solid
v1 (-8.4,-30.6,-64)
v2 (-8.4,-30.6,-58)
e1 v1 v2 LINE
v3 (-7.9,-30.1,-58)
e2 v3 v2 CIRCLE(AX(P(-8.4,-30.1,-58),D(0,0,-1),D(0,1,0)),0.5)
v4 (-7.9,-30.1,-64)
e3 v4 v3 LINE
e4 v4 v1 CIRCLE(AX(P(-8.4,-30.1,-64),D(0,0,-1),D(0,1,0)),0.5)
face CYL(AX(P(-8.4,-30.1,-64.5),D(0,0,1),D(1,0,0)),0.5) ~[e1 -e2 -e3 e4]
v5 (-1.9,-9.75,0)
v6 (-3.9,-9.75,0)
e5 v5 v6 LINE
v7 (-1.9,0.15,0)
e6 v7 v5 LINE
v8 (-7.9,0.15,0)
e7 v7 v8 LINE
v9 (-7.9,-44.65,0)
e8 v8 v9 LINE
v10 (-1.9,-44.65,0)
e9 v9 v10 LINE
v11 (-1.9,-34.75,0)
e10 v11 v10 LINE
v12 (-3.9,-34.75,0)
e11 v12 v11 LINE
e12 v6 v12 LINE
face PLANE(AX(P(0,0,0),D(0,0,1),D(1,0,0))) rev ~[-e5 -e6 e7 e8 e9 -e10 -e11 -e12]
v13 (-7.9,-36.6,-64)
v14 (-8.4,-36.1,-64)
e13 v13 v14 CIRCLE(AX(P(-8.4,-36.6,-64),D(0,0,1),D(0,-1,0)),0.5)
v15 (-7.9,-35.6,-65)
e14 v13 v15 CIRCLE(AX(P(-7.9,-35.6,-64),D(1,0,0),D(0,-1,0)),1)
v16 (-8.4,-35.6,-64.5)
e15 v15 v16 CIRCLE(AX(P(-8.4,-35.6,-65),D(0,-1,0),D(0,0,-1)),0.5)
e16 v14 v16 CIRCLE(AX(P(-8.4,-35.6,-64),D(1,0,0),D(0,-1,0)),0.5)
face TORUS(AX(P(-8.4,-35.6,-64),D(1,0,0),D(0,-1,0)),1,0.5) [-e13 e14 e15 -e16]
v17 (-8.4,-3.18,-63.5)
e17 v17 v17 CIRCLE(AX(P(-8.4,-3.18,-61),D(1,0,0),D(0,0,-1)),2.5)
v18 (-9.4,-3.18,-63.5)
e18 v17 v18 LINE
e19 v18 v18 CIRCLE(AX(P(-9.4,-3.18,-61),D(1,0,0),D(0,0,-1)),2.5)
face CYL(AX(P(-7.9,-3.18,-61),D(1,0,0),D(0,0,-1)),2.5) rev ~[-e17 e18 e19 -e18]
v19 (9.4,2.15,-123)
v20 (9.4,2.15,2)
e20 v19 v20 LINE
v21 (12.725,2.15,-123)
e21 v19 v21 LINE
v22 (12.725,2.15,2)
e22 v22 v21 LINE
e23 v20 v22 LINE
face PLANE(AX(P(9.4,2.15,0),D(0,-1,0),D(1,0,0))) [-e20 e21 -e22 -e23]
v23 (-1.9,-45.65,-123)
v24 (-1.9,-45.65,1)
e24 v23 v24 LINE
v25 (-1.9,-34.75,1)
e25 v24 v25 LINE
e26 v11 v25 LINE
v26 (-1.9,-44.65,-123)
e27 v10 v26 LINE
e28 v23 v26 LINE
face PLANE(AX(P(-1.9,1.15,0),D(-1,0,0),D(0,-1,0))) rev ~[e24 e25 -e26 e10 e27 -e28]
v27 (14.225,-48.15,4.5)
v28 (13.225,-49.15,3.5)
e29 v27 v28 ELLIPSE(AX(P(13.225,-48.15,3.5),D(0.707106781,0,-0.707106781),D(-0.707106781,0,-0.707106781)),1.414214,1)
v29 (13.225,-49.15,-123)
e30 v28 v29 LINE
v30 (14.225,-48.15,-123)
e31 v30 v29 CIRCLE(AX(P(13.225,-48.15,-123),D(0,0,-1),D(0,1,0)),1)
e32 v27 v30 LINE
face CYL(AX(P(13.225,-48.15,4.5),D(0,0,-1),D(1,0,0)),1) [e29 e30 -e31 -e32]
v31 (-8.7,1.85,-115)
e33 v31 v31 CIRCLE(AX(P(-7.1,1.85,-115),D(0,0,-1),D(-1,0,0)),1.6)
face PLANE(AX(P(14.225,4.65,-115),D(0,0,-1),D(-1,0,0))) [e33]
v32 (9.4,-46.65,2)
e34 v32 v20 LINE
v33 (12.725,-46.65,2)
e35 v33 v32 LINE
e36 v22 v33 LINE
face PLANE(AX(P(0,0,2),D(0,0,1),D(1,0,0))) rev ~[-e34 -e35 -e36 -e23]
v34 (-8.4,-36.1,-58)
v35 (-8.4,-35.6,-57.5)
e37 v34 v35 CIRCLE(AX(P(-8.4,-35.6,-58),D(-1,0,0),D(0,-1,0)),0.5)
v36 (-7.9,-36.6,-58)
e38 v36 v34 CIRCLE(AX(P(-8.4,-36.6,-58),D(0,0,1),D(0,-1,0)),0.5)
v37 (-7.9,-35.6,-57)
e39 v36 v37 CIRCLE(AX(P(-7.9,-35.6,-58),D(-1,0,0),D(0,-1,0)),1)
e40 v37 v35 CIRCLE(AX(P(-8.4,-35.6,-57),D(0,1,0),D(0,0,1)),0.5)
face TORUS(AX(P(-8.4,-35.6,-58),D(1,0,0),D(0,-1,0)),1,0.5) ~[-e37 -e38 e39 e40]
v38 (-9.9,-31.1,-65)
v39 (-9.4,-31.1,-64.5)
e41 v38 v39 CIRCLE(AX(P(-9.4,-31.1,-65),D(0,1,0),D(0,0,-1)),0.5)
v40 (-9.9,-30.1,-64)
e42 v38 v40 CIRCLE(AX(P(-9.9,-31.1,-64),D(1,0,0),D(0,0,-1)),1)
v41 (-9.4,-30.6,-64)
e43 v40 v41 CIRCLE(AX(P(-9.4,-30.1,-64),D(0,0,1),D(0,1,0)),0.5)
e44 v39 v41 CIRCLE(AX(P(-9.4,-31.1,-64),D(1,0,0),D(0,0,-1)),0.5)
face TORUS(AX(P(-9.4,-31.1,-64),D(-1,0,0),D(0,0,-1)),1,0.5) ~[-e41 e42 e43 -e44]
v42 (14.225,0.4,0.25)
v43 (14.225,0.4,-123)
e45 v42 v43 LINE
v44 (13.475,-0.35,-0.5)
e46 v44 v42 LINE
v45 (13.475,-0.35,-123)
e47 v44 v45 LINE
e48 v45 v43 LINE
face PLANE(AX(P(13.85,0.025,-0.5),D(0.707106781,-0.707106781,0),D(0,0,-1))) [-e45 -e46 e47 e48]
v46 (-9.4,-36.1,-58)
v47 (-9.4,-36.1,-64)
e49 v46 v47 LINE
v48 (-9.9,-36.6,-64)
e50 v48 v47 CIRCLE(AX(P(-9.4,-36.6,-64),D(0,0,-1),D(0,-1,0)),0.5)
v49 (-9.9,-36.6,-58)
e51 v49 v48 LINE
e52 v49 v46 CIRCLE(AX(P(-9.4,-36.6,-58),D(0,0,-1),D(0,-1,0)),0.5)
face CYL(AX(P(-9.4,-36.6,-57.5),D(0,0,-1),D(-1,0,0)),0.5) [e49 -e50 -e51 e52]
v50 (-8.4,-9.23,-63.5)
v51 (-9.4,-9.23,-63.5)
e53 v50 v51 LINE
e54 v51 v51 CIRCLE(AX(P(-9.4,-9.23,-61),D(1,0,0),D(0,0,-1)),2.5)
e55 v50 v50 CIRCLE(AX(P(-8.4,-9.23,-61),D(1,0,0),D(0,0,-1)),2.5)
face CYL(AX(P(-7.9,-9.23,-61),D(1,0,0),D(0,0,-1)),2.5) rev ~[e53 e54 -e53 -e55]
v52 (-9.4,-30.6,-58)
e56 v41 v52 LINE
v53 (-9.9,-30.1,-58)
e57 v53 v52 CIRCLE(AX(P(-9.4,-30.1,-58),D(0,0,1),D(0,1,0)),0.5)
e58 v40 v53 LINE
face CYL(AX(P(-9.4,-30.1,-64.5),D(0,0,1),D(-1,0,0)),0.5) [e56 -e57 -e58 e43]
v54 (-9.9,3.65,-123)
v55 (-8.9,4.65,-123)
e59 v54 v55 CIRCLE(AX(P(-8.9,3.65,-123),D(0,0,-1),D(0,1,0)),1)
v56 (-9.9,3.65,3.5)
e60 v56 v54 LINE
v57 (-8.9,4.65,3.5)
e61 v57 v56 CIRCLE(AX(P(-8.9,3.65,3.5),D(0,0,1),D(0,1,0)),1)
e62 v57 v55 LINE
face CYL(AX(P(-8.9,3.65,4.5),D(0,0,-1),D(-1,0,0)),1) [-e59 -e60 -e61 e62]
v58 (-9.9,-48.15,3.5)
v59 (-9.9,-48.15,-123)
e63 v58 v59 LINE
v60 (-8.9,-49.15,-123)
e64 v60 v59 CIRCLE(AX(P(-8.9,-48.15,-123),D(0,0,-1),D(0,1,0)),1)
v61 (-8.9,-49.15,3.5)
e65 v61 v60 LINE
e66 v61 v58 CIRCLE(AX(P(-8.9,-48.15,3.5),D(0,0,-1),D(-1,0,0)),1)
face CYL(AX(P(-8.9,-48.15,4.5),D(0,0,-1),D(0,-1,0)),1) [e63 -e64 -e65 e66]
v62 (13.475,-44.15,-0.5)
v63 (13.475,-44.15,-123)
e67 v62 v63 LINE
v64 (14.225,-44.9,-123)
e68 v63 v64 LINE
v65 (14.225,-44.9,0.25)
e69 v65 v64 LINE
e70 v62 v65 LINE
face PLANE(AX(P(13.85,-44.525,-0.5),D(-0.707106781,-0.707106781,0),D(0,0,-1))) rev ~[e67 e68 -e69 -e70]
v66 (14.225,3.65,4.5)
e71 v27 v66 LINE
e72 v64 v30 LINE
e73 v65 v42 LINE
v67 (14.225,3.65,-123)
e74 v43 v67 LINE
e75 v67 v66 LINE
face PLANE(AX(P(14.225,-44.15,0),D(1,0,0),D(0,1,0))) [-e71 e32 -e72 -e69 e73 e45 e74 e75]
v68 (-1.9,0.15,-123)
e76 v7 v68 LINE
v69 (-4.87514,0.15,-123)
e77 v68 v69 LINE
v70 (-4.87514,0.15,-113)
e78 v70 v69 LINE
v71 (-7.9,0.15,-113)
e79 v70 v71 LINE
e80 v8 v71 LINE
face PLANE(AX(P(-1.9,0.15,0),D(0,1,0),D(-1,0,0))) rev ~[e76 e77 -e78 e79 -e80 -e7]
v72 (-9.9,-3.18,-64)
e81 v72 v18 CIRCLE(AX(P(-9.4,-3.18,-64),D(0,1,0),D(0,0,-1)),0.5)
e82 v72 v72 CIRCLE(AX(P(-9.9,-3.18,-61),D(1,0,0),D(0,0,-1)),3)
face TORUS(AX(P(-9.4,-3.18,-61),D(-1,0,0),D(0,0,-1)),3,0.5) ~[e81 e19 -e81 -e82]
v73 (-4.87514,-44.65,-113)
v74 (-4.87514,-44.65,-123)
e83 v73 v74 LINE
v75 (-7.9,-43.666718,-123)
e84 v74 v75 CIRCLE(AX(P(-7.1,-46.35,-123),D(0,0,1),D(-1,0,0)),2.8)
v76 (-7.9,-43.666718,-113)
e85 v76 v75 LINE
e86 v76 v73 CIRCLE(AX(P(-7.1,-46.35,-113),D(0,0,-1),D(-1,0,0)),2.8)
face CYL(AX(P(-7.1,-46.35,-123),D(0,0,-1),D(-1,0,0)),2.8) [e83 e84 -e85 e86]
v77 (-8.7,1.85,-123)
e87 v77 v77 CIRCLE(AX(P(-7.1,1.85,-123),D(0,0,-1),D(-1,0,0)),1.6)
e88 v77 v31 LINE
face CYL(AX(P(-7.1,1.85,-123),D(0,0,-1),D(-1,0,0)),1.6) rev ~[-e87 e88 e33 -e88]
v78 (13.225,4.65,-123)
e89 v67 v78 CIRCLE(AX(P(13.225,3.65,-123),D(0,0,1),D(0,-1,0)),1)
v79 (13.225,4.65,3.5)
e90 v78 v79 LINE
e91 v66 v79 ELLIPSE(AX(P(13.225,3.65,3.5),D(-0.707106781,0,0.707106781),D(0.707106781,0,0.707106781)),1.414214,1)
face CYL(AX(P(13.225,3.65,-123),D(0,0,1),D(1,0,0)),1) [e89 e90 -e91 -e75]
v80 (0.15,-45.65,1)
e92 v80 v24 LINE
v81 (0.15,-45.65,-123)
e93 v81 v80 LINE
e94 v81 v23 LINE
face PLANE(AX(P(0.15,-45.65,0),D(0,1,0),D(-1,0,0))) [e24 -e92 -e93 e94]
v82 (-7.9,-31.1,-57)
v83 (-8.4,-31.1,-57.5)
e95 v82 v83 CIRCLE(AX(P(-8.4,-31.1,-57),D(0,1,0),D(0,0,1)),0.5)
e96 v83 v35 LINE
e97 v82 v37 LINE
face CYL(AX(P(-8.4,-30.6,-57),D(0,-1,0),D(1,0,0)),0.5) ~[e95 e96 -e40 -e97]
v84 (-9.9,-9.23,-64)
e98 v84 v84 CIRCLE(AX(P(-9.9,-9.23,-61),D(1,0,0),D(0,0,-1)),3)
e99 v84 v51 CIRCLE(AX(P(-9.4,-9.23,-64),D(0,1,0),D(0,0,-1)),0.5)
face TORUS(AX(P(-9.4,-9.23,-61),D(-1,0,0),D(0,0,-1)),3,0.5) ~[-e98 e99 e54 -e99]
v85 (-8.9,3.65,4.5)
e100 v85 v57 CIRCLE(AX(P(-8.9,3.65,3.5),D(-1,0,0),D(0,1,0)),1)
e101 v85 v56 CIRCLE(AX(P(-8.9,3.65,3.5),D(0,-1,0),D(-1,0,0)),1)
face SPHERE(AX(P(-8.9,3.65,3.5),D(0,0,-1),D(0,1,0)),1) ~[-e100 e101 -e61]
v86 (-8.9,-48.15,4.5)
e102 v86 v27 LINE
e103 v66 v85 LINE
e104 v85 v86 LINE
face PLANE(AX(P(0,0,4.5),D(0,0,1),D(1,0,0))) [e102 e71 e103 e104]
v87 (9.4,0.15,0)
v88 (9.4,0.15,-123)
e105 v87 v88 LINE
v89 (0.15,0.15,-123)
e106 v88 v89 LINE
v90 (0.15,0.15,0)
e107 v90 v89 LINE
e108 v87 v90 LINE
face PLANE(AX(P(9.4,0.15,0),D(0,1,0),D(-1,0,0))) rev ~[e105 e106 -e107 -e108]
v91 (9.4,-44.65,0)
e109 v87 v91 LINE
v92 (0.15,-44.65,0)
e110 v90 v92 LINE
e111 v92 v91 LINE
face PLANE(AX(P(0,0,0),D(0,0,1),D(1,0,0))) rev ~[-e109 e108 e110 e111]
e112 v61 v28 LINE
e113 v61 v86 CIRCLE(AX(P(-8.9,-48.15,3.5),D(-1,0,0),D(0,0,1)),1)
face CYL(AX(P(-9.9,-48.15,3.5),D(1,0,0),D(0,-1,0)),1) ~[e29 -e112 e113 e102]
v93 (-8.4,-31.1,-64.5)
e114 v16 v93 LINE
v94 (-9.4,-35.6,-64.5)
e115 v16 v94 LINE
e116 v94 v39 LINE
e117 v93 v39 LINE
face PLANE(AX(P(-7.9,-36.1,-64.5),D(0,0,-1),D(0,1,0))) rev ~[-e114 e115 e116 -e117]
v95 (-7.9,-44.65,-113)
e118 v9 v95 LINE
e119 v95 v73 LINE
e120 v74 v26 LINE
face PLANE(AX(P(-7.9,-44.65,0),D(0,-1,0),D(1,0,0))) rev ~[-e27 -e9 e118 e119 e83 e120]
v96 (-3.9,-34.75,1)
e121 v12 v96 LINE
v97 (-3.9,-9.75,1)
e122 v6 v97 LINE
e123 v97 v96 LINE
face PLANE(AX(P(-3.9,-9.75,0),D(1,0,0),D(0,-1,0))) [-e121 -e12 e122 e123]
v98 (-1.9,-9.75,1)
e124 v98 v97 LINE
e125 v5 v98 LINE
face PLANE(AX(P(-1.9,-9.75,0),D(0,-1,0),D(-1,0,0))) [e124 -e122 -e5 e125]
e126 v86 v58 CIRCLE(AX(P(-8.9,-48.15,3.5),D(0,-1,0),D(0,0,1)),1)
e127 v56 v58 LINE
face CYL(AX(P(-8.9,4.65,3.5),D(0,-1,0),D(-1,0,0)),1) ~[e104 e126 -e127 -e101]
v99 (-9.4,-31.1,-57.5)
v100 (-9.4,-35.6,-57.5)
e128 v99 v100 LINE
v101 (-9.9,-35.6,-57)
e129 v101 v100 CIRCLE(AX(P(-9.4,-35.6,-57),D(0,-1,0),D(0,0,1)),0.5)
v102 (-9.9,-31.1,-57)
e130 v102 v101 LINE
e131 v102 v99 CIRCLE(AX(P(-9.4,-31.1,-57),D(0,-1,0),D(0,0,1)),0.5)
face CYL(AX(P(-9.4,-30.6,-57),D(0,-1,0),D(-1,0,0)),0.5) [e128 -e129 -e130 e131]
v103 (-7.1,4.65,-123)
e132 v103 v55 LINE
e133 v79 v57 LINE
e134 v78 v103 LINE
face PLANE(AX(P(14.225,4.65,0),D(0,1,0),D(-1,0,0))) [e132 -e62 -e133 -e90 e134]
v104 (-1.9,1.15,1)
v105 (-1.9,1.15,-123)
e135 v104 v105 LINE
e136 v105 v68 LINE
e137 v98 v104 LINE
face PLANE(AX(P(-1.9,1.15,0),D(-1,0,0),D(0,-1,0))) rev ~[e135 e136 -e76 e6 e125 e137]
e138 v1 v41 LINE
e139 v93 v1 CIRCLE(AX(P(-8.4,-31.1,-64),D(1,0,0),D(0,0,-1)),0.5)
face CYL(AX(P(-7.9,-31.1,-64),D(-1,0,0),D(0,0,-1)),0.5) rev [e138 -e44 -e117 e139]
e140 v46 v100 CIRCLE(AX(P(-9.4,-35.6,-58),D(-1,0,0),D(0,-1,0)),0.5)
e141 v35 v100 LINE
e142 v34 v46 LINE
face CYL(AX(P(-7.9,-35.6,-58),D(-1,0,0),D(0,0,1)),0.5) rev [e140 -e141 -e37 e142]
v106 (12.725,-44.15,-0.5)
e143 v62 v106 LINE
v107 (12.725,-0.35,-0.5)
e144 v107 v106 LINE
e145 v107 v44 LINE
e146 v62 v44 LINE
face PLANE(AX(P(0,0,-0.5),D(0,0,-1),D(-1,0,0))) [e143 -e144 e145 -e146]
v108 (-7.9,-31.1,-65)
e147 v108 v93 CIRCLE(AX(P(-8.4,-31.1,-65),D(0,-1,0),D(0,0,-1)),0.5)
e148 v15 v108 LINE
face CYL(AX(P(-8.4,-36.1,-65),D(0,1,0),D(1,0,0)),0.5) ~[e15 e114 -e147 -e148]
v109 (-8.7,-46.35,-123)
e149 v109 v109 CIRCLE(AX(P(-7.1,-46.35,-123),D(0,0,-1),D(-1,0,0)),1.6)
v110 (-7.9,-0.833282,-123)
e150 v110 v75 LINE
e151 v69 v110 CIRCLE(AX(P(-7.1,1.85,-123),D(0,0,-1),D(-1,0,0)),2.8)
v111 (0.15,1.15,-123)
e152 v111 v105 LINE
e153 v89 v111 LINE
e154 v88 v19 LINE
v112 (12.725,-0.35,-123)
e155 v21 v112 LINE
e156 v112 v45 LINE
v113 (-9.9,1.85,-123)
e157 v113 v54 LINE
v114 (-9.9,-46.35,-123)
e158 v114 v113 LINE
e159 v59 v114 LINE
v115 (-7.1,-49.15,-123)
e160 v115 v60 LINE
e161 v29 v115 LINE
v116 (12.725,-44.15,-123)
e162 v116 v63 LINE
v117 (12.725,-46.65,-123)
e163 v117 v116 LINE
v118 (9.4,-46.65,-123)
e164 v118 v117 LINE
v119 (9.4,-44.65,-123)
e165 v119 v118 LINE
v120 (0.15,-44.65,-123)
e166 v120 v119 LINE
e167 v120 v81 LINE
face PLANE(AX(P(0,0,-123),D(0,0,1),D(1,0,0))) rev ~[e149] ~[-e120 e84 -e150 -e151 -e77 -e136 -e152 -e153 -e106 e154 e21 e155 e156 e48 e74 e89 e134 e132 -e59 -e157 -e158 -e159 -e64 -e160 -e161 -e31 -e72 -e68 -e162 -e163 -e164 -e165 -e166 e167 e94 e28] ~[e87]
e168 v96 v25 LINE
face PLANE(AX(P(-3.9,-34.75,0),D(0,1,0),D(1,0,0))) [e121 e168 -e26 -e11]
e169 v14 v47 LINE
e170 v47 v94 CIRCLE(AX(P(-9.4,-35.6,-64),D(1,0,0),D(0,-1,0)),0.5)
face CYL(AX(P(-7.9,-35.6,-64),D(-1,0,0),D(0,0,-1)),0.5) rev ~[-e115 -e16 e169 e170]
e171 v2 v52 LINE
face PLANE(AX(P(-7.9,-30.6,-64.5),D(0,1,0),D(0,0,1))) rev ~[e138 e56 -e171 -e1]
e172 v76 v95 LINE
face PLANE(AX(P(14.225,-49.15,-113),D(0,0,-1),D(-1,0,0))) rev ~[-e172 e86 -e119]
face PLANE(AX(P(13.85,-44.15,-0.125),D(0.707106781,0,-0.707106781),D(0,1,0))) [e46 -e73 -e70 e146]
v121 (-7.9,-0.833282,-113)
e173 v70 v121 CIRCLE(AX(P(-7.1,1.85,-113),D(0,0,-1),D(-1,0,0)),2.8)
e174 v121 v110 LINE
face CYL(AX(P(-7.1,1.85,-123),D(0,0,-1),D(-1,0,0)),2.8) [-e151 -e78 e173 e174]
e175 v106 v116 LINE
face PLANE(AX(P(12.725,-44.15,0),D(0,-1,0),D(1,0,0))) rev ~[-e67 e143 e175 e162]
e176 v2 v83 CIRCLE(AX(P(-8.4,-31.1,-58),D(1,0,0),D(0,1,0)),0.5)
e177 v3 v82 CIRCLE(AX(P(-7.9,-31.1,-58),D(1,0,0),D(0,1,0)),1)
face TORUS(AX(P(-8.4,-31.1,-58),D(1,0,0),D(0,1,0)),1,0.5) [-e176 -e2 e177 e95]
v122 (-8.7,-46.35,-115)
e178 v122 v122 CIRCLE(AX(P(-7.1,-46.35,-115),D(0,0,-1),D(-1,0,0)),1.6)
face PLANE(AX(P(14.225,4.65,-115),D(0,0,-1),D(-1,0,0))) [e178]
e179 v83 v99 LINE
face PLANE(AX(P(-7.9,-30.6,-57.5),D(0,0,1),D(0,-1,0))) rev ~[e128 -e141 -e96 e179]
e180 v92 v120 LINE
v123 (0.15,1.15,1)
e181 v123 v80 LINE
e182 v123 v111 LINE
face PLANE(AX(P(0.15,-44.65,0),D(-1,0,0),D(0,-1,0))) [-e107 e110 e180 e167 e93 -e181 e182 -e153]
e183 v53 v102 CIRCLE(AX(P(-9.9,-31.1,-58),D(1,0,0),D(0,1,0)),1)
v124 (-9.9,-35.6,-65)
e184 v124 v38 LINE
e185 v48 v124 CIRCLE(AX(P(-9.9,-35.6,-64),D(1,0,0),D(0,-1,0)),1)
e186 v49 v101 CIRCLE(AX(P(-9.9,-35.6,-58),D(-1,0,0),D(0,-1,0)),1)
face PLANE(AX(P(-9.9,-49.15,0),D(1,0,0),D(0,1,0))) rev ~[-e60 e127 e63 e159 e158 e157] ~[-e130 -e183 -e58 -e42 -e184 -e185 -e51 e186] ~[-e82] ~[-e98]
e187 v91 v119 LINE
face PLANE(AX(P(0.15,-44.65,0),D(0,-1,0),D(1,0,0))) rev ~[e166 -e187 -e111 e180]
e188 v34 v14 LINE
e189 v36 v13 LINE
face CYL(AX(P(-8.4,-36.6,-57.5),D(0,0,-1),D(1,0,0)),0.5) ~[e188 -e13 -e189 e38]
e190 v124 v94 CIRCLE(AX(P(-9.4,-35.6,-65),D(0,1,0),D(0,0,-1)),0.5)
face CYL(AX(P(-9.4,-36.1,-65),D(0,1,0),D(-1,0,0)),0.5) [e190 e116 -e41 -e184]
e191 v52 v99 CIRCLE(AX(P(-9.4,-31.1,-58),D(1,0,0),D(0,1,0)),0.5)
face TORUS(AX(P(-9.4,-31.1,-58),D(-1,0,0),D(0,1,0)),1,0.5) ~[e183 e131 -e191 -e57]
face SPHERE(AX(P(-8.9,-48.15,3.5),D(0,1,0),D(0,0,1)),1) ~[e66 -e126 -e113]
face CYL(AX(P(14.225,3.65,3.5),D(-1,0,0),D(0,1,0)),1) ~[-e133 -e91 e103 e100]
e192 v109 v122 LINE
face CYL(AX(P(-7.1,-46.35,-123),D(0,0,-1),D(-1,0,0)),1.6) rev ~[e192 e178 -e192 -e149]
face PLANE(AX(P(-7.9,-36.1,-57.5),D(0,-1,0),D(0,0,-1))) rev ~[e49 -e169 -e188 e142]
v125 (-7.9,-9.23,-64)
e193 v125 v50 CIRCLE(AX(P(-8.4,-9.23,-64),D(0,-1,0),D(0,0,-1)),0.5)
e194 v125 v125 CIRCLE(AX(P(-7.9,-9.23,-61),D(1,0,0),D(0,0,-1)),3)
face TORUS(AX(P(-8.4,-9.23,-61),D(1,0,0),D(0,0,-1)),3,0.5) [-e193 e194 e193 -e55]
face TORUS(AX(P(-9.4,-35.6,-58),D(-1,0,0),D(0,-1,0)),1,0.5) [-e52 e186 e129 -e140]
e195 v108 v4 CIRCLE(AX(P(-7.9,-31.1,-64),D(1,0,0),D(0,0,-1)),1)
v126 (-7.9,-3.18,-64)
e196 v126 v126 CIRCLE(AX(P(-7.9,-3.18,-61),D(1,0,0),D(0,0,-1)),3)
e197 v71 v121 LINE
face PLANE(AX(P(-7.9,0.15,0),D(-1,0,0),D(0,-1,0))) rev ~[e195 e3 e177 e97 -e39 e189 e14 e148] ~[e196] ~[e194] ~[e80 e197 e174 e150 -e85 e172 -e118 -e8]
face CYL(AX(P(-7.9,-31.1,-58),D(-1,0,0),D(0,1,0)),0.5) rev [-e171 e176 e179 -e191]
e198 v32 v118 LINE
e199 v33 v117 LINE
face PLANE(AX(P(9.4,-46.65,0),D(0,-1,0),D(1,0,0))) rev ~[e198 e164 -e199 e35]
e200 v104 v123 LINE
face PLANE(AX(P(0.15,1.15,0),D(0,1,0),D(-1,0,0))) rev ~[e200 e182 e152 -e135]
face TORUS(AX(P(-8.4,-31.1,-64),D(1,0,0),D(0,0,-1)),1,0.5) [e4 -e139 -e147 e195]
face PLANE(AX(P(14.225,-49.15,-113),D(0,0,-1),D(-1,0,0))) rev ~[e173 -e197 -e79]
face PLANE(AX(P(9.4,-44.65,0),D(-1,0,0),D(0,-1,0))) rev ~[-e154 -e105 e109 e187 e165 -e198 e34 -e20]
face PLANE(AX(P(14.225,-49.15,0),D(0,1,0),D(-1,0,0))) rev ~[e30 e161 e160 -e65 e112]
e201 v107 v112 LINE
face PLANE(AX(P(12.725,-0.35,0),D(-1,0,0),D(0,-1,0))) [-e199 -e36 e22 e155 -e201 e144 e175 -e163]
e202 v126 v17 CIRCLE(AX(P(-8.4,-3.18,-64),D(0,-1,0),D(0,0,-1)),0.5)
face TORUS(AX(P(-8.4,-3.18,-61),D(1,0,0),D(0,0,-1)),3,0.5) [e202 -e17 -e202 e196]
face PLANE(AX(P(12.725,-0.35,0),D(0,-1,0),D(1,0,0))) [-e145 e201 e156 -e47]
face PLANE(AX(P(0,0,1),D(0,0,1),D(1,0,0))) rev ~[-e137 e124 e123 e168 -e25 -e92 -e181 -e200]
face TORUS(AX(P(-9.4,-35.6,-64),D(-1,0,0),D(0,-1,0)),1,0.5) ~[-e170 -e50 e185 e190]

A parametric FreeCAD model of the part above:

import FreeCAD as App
import Part
import Sketcher
Q = App.Units.Quantity


def edges_at(feature, points):
    """Names of the edges that pass closest to the given points."""
    edges = feature.Shape.Edges
    near = lambda p: min(range(len(edges)), key=lambda i: edges[i].distToShape(Part.Vertex(*p))[0])
    return sorted({f"Edge{near(p) + 1}" for p in points})


def add_polygon(sketch, points):
    """Adds a closed chain of lines whose ends are joined by coincident constraints."""
    first, n = sketch.GeometryCount, len(points)
    for a, b in zip(points, points[1:] + points[:1]):
        sketch.addGeometry(Part.LineSegment(App.Vector(*a, 0), App.Vector(*b, 0)), False)
    for i in range(n):
        sketch.addConstraint(Sketcher.Constraint("Coincident", first + i, 2, first + (i + 1) % n, 1))

doc = App.newDocument("Part")
params = doc.addObject("Spreadsheet::Sheet", "Params")
for row, (alias, value) in enumerate([
    ("sketch1_width", "6 mm"),
    ("sketch1_height", "2 mm"),
    ("sketch1_height2", "5 mm"),
    ("sketch1_width2", "1.5 mm"),
    ("sketch1_height3", "2.5 mm"),
    ("pad1_length", "123 mm"),
    ("sketch2_height", "53.8 mm"),
    ("sketch2_height2", "46.8 mm"),
    ("sketch2_height3", "48.8 mm"),
    ("sketch2_width", "2.05 mm"),
    ("pad2_length", "4.5 mm"),
    ("sketch3_height", "46.8 mm"),
    ("sketch3_width", "2.05 mm"),
    ("pad3_length", "3.5 mm"),
    ("sketch4_height", "48.8 mm"),
    ("pad4_length", "2.5 mm"),
    ("sketch5_width", "1.5 mm"),
    ("sketch5_height", "43.8 mm"),
    ("pad5_length", "0.5 mm"),
    ("sketch6_diameter", "5.6 mm"),
    ("pad6_length", "10 mm"),
    ("sketch7_diameter", "3.2 mm"),
    ("pocket1_length", "8 mm"),
    ("chamfer_size", "0.75 mm"),
    ("sketch8_diameter", "5 mm"),
    ("sketch8_height", "7 mm"),
    ("sketch8_width", "5.5 mm"),
    ("fillet_radius", "1 mm"),
    ("fillet2_radius", "0.5 mm"),
    ("sketch9_width", "2 mm"),
    ("sketch9_height", "25 mm"),
    ("pocket3_length", "1 mm"),
], start=1):
    params.set(f"A{row}", alias)
    params.set(f"B{row}", "=" + value)
    params.setAlias(f"B{row}", alias)

body = doc.addObject("PartDesign::Body", "Body")

sketch1 = body.newObject("Sketcher::SketchObject", "Sketch")
sketch1.AttachmentSupport = (doc.getObject("XY_Plane"), [""])
sketch1.MapMode = "FlatFace"
add_polygon(sketch1, [(9.4, -44.6), (0.1, -44.6), (0.1, -45.6), (-1.9, -45.6), (-1.9, -44.6), (-7.9, -44.6), (-7.9, 0.1), (-1.9, 0.1), (-1.9, 1.1), (0.1, 1.1), (0.1, 0.1), (9.4, 0.1), (9.4, 2.1), (12.7, 2.1), (12.7, -0.3), (14.2, -0.3), (14.2, 4.7), (-9.9, 4.7), (-9.9, -49.1), (14.2, -49.1), (14.2, -44.1), (12.7, -44.1), (12.7, -46.6), (9.4, -46.6)])
sketch1.addConstraint([
    Sketcher.Constraint("Horizontal", 0),
    Sketcher.Constraint("Vertical", 1),
    Sketcher.Constraint("Horizontal", 2),
    Sketcher.Constraint("Vertical", 3),
    Sketcher.Constraint("Horizontal", 4),
    Sketcher.Constraint("Vertical", 5),
    Sketcher.Constraint("Horizontal", 6),
    Sketcher.Constraint("Vertical", 7),
    Sketcher.Constraint("Horizontal", 8),
    Sketcher.Constraint("Vertical", 9),
    Sketcher.Constraint("Horizontal", 10),
    Sketcher.Constraint("Vertical", 11),
    Sketcher.Constraint("Horizontal", 12),
    Sketcher.Constraint("Vertical", 13),
    Sketcher.Constraint("Horizontal", 14),
    Sketcher.Constraint("Vertical", 15),
    Sketcher.Constraint("Horizontal", 16),
    Sketcher.Constraint("Vertical", 17),
    Sketcher.Constraint("Horizontal", 18),
    Sketcher.Constraint("Vertical", 19),
    Sketcher.Constraint("Horizontal", 20),
    Sketcher.Constraint("Vertical", 21),
    Sketcher.Constraint("Horizontal", 22),
    Sketcher.Constraint("Vertical", 23),
    Sketcher.Constraint("Horizontal", 0, 2, 3, 2),
    Sketcher.Constraint("Horizontal", 6, 2, 9, 2),
    Sketcher.Constraint("Vertical", 3, 2, 6, 2),
    Sketcher.Constraint("Vertical", 1, 2, 8, 2),
    Sketcher.Constraint("Vertical", 15, 2, 18, 2),
    Sketcher.Constraint("Vertical", 13, 2, 20, 2),
    Sketcher.Constraint("Vertical", 11, 2, 22, 2),
    Sketcher.Constraint("Equal", 3, 7),
    Sketcher.Constraint("Equal", 15, 19),
    Sketcher.Constraint("Equal", 13, 21),
    Sketcher.Constraint("Equal", 11, 23),
    Sketcher.Constraint("DistanceX", 4, 2, 4, 1, Q("6 mm")),
    Sketcher.Constraint("DistanceY", 11, 1, 11, 2, Q("2 mm")),
    Sketcher.Constraint("DistanceY", 15, 1, 15, 2, Q("5 mm")),
    Sketcher.Constraint("DistanceX", 14, 1, 14, 2, Q("1.5 mm")),
    Sketcher.Constraint("DistanceY", 13, 2, 13, 1, Q("2.5 mm")),
    Sketcher.Constraint("DistanceX", 16, 2, 5, 2, Q("2 mm")),
    Sketcher.Constraint("DistanceY", 13, 2, 8, 2, Q("1.5 mm")),
    Sketcher.Constraint("DistanceX", 12, 1, 12, 2, Q("3.325 mm")),
    Sketcher.Constraint("DistanceX", -1, 1, 0, 2, Q("0.15 mm")),
    Sketcher.Constraint("DistanceY", -1, 1, 5, 2, Q("0.15 mm")),
    Sketcher.Constraint("DistanceY", 5, 1, 5, 2, Q("44.8 mm")),
    Sketcher.Constraint("DistanceX", 0, 2, 0, 1, Q("9.25 mm")),
    Sketcher.Constraint("DistanceX", 2, 2, 2, 1, Q("2.05 mm")),
])
sketch1.setExpression("Constraints[59]", "Params.sketch1_width")
sketch1.setExpression("Constraints[60]", "Params.sketch1_height")
sketch1.setExpression("Constraints[61]", "Params.sketch1_height2")
sketch1.setExpression("Constraints[62]", "Params.sketch1_width2")
sketch1.setExpression("Constraints[63]", "Params.sketch1_height3")
pad1 = body.newObject("PartDesign::Pad", "Pad")
pad1.Profile = sketch1
pad1.setExpression("Length", "Params.pad1_length")
pad1.Reversed = True

sketch2 = body.newObject("Sketcher::SketchObject", "Sketch001")
sketch2.AttachmentSupport = (doc.getObject("XY_Plane"), [""])
sketch2.MapMode = "FlatFace"
add_polygon(sketch2, [(14.2, -49.1), (14.2, 4.7), (-9.9, 4.7), (-9.9, -49.1)])
add_polygon(sketch2, [(0.1, 1.1), (0.1, -45.6), (-1.9, -45.6), (-1.9, 1.1)])
add_polygon(sketch2, [(9.4, -46.6), (9.4, 2.1), (12.7, 2.1), (12.7, -46.6)])
sketch2.addConstraint([
    Sketcher.Constraint("Vertical", 0),
    Sketcher.Constraint("Horizontal", 1),
    Sketcher.Constraint("Vertical", 2),
    Sketcher.Constraint("Horizontal", 3),
    Sketcher.Constraint("Vertical", 4),
    Sketcher.Constraint("Horizontal", 5),
    Sketcher.Constraint("Vertical", 6),
    Sketcher.Constraint("Horizontal", 7),
    Sketcher.Constraint("Vertical", 8),
    Sketcher.Constraint("Horizontal", 9),
    Sketcher.Constraint("Vertical", 10),
    Sketcher.Constraint("Horizontal", 11),
    Sketcher.Constraint("DistanceY", 0, 1, 0, 2, Q("53.8 mm")),
    Sketcher.Constraint("DistanceY", 4, 2, 4, 1, Q("46.8 mm")),
    Sketcher.Constraint("DistanceY", 8, 1, 8, 2, Q("48.8 mm")),
    Sketcher.Constraint("DistanceX", 2, 2, 5, 2, Q("8 mm")),
    Sketcher.Constraint("DistanceY", 7, 2, 8, 2, Q("1 mm")),
    Sketcher.Constraint("DistanceX", 5, 2, 5, 1, Q("2.05 mm")),
    Sketcher.Constraint("DistanceX", 1, 2, -1, 1, Q("9.9 mm")),
    Sketcher.Constraint("DistanceX", -1, 1, 8, 2, Q("9.4 mm")),
    Sketcher.Constraint("DistanceY", 2, 2, 4, 2, Q("3.5 mm")),
    Sketcher.Constraint("DistanceX", 9, 2, 0, 2, Q("1.5 mm")),
    Sketcher.Constraint("DistanceX", 1, 2, 1, 1, Q("24.125 mm")),
    Sketcher.Constraint("DistanceY", -1, 1, 0, 2, Q("4.65 mm")),
])
sketch2.setExpression("Constraints[24]", "Params.sketch2_height")
sketch2.setExpression("Constraints[25]", "Params.sketch2_height2")
sketch2.setExpression("Constraints[26]", "Params.sketch2_height3")
sketch2.setExpression("Constraints[29]", "Params.sketch2_width")
pad2 = body.newObject("PartDesign::Pad", "Pad001")
pad2.Profile = sketch2
pad2.setExpression("Length", "Params.pad2_length")

sketch3 = body.newObject("Sketcher::SketchObject", "Sketch002")
sketch3.AttachmentSupport = (doc.getObject("XY_Plane"), [""])
sketch3.MapMode = "FlatFace"
sketch3.AttachmentOffset = App.Placement(App.Vector(0, 0, 4.5), App.Rotation())
add_polygon(sketch3, [(0.1, -45.6), (0.1, 1.1), (-1.9, 1.1), (-1.9, -45.6)])
sketch3.addConstraint([
    Sketcher.Constraint("Vertical", 0),
    Sketcher.Constraint("Horizontal", 1),
    Sketcher.Constraint("Vertical", 2),
    Sketcher.Constraint("Horizontal", 3),
    Sketcher.Constraint("DistanceY", 0, 1, 0, 2, Q("46.8 mm")),
    Sketcher.Constraint("DistanceX", 1, 2, 1, 1, Q("2.05 mm")),
    Sketcher.Constraint("DistanceX", 1, 2, -1, 1, Q("1.9 mm")),
    Sketcher.Constraint("DistanceY", -1, 1, 0, 2, Q("1.15 mm")),
])
sketch3.setExpression("Constraints[8]", "Params.sketch3_height")
sketch3.setExpression("Constraints[9]", "Params.sketch3_width")
pad3 = body.newObject("PartDesign::Pad", "Pad002")
pad3.Profile = sketch3
pad3.setExpression("Length", "Params.pad3_length")
pad3.Reversed = True

sketch4 = body.newObject("Sketcher::SketchObject", "Sketch003")
sketch4.AttachmentSupport = (doc.getObject("XY_Plane"), [""])
sketch4.MapMode = "FlatFace"
sketch4.AttachmentOffset = App.Placement(App.Vector(0, 0, 4.5), App.Rotation())
add_polygon(sketch4, [(12.7, -46.6), (12.7, 2.1), (9.4, 2.1), (9.4, -46.6)])
sketch4.addConstraint([
    Sketcher.Constraint("Vertical", 0),
    Sketcher.Constraint("Horizontal", 1),
    Sketcher.Constraint("Vertical", 2),
    Sketcher.Constraint("Horizontal", 3),
    Sketcher.Constraint("DistanceY", 0, 1, 0, 2, Q("48.8 mm")),
    Sketcher.Constraint("DistanceX", -1, 1, 1, 2, Q("9.4 mm")),
    Sketcher.Constraint("DistanceX", 1, 2, 1, 1, Q("3.325 mm")),
    Sketcher.Constraint("DistanceY", -1, 1, 0, 2, Q("2.15 mm")),
])
sketch4.setExpression("Constraints[8]", "Params.sketch4_height")
pad4 = body.newObject("PartDesign::Pad", "Pad003")
pad4.Profile = sketch4
pad4.setExpression("Length", "Params.pad4_length")
pad4.Reversed = True

sketch5 = body.newObject("Sketcher::SketchObject", "Sketch004")
sketch5.AttachmentSupport = (doc.getObject("XY_Plane"), [""])
sketch5.MapMode = "FlatFace"
add_polygon(sketch5, [(12.7, -44.1), (12.7, -0.3), (14.2, -0.3), (14.2, -44.1)])
sketch5.addConstraint([
    Sketcher.Constraint("Vertical", 0),
    Sketcher.Constraint("Horizontal", 1),
    Sketcher.Constraint("Vertical", 2),
    Sketcher.Constraint("Horizontal", 3),
    Sketcher.Constraint("DistanceX", 1, 1, 1, 2, Q("1.5 mm")),
    Sketcher.Constraint("DistanceY", 0, 1, 0, 2, Q("43.8 mm")),
    Sketcher.Constraint("DistanceY", 0, 2, -1, 1, Q("0.35 mm")),
    Sketcher.Constraint("DistanceX", -1, 1, 0, 2, Q("12.725 mm")),
])
sketch5.setExpression("Constraints[8]", "Params.sketch5_width")
sketch5.setExpression("Constraints[9]", "Params.sketch5_height")
pad5 = body.newObject("PartDesign::Pad", "Pad004")
pad5.Profile = sketch5
pad5.setExpression("Length", "Params.pad5_length")
pad5.Reversed = True

sketch6 = body.newObject("Sketcher::SketchObject", "Sketch005")
sketch6.AttachmentSupport = (doc.getObject("XY_Plane"), [""])
sketch6.MapMode = "FlatFace"
sketch6.AttachmentOffset = App.Placement(App.Vector(0, 0, -123), App.Rotation())
sketch6.addGeometry([
    Part.Circle(App.Vector(-7.1, 1.9, 0), App.Vector(0, 0, 1), 2.8),
    Part.Circle(App.Vector(-7.1, -46.4, 0), App.Vector(0, 0, 1), 2.8),
], False)
sketch6.addConstraint([
    Sketcher.Constraint("Equal", 0, 1),
    Sketcher.Constraint("Vertical", 0, 3, 1, 3),
    Sketcher.Constraint("Diameter", 0, Q("5.6 mm")),
    Sketcher.Constraint("DistanceX", 0, 3, -1, 1, Q("7.1 mm")),
    Sketcher.Constraint("DistanceY", 1, 3, 0, 3, Q("48.2 mm")),
    Sketcher.Constraint("DistanceY", -1, 1, 0, 3, Q("1.85 mm")),
])
sketch6.setExpression("Constraints[2]", "Params.sketch6_diameter")
pad6 = body.newObject("PartDesign::Pad", "Pad005")
pad6.Profile = sketch6
pad6.setExpression("Length", "Params.pad6_length")

sketch7 = body.newObject("Sketcher::SketchObject", "Sketch006")
sketch7.AttachmentSupport = (doc.getObject("XY_Plane"), [""])
sketch7.MapMode = "FlatFace"
sketch7.AttachmentOffset = App.Placement(App.Vector(0, 0, -123), App.Rotation())
sketch7.addGeometry([
    Part.Circle(App.Vector(-7.1, 1.9, 0), App.Vector(0, 0, 1), 1.6),
    Part.Circle(App.Vector(-7.1, -46.4, 0), App.Vector(0, 0, 1), 1.6),
], False)
sketch7.addConstraint([
    Sketcher.Constraint("Equal", 0, 1),
    Sketcher.Constraint("Vertical", 0, 3, 1, 3),
    Sketcher.Constraint("Diameter", 0, Q("3.2 mm")),
    Sketcher.Constraint("DistanceX", 0, 3, -1, 1, Q("7.1 mm")),
    Sketcher.Constraint("DistanceY", 1, 3, 0, 3, Q("48.2 mm")),
    Sketcher.Constraint("DistanceY", -1, 1, 0, 3, Q("1.85 mm")),
])
sketch7.setExpression("Constraints[2]", "Params.sketch7_diameter")
pocket1 = body.newObject("PartDesign::Pocket", "Pocket")
pocket1.Profile = sketch7
pocket1.setExpression("Length", "Params.pocket1_length")
pocket1.Reversed = True
doc.recompute()

chamfer = body.newObject("PartDesign::Chamfer", "Chamfer")
chamfer.Base = (pocket1, edges_at(pocket1, [(14.225, -0.35, -61.75), (14.225, -44.15, -61.75), (14.225, -22.25, -0.5)]))
chamfer.setExpression("Size", "Params.chamfer_size")

sketch8 = body.newObject("Sketcher::SketchObject", "Sketch007")
sketch8.AttachmentSupport = (doc.getObject("YZ_Plane"), [""])
sketch8.MapMode = "FlatFace"
sketch8.AttachmentOffset = App.Placement(App.Vector(0, 0, -7.9), App.Rotation())
add_polygon(sketch8, [(-36.1, -64.5), (-30.6, -64.5), (-30.6, -57.5), (-36.1, -57.5)])
sketch8.addGeometry(Part.Circle(App.Vector(-9.2, -61, 0), App.Vector(0, 0, 1), 2.5), False)
sketch8.addGeometry(Part.Circle(App.Vector(-3.2, -61, 0), App.Vector(0, 0, 1), 2.5), False)
sketch8.addConstraint([
    Sketcher.Constraint("Horizontal", 0),
    Sketcher.Constraint("Vertical", 1),
    Sketcher.Constraint("Horizontal", 2),
    Sketcher.Constraint("Vertical", 3),
    Sketcher.Constraint("Equal", 4, 5),
    Sketcher.Constraint("Horizontal", 4, 3, 5, 3),
    Sketcher.Constraint("Diameter", 4, Q("5 mm")),
    Sketcher.Constraint("DistanceY", 1, 1, 1, 2, Q("7 mm")),
    Sketcher.Constraint("DistanceX", 4, 3, 5, 3, Q("6.05 mm")),
    Sketcher.Constraint("DistanceX", 0, 1, 0, 2, Q("5.5 mm")),
    Sketcher.Constraint("DistanceY", 4, 3, -1, 1, Q("61 mm")),
    Sketcher.Constraint("DistanceX", 0, 2, -1, 1, Q("30.6 mm")),
    Sketcher.Constraint("DistanceY", 0, 2, -1, 1, Q("64.5 mm")),
    Sketcher.Constraint("DistanceX", 4, 3, -1, 1, Q("9.23 mm")),
])
sketch8.setExpression("Constraints[10]", "Params.sketch8_diameter")
sketch8.setExpression("Constraints[11]", "Params.sketch8_height")
sketch8.setExpression("Constraints[13]", "Params.sketch8_width")
pocket2 = body.newObject("PartDesign::Pocket", "Pocket001")
pocket2.Profile = sketch8
pocket2.Type = "ThroughAll"
doc.recompute()

fillet = body.newObject("PartDesign::Fillet", "Fillet")
fillet.Base = (pocket2, edges_at(pocket2, [
    (14.225, 4.65, -59.25),
    (-9.9, 4.65, -59.25),
    (14.225, -49.15, -59.25),
    (2.163, 4.65, 4.5),
    (-9.9, -22.25, 4.5),
    (2.163, -49.15, 4.5),
    (-9.9, -49.15, -59.25),
]))
fillet.setExpression("Radius", "Params.fillet_radius")
doc.recompute()

fillet2 = body.newObject("PartDesign::Fillet", "Fillet001")
fillet2.Base = (fillet, edges_at(fillet, [
    (-7.9, -36.1, -61),
    (-7.9, -33.35, -64.5),
    (-7.9, -30.6, -61),
    (-7.9, -33.35, -57.5),
    (-9.9, -36.1, -61),
    (-9.9, -33.35, -64.5),
    (-9.9, -30.6, -61),
    (-9.9, -33.35, -57.5),
    (-8.9, -30.6, -57.5),
    (-8.9, -36.1, -57.5),
    (-8.9, -36.1, -64.5),
    (-8.9, -30.6, -64.5),
    (-7.9, -9.23, -58.5),
    (-9.9, -9.23, -58.5),
    (-9.9, -3.18, -58.5),
    (-7.9, -3.18, -58.5),
]))
fillet2.setExpression("Radius", "Params.fillet2_radius")

sketch9 = body.newObject("Sketcher::SketchObject", "Sketch008")
sketch9.AttachmentSupport = (doc.getObject("XY_Plane"), [""])
sketch9.MapMode = "FlatFace"
add_polygon(sketch9, [(-1.9, -9.8), (-1.9, -34.8), (-3.9, -34.8), (-3.9, -9.8)])
sketch9.addConstraint([
    Sketcher.Constraint("Vertical", 0),
    Sketcher.Constraint("Horizontal", 1),
    Sketcher.Constraint("Vertical", 2),
    Sketcher.Constraint("Horizontal", 3),
    Sketcher.Constraint("DistanceX", 1, 2, 1, 1, Q("2 mm")),
    Sketcher.Constraint("DistanceY", 0, 2, 0, 1, Q("25 mm")),
    Sketcher.Constraint("DistanceX", 0, 2, -1, 1, Q("1.9 mm")),
    Sketcher.Constraint("DistanceY", 0, 2, -1, 1, Q("34.75 mm")),
])
sketch9.setExpression("Constraints[8]", "Params.sketch9_width")
sketch9.setExpression("Constraints[9]", "Params.sketch9_height")
pocket3 = body.newObject("PartDesign::Pocket", "Pocket002")
pocket3.Profile = sketch9
pocket3.setExpression("Length", "Params.pocket3_length")
pocket3.Reversed = True

doc.recompute()
